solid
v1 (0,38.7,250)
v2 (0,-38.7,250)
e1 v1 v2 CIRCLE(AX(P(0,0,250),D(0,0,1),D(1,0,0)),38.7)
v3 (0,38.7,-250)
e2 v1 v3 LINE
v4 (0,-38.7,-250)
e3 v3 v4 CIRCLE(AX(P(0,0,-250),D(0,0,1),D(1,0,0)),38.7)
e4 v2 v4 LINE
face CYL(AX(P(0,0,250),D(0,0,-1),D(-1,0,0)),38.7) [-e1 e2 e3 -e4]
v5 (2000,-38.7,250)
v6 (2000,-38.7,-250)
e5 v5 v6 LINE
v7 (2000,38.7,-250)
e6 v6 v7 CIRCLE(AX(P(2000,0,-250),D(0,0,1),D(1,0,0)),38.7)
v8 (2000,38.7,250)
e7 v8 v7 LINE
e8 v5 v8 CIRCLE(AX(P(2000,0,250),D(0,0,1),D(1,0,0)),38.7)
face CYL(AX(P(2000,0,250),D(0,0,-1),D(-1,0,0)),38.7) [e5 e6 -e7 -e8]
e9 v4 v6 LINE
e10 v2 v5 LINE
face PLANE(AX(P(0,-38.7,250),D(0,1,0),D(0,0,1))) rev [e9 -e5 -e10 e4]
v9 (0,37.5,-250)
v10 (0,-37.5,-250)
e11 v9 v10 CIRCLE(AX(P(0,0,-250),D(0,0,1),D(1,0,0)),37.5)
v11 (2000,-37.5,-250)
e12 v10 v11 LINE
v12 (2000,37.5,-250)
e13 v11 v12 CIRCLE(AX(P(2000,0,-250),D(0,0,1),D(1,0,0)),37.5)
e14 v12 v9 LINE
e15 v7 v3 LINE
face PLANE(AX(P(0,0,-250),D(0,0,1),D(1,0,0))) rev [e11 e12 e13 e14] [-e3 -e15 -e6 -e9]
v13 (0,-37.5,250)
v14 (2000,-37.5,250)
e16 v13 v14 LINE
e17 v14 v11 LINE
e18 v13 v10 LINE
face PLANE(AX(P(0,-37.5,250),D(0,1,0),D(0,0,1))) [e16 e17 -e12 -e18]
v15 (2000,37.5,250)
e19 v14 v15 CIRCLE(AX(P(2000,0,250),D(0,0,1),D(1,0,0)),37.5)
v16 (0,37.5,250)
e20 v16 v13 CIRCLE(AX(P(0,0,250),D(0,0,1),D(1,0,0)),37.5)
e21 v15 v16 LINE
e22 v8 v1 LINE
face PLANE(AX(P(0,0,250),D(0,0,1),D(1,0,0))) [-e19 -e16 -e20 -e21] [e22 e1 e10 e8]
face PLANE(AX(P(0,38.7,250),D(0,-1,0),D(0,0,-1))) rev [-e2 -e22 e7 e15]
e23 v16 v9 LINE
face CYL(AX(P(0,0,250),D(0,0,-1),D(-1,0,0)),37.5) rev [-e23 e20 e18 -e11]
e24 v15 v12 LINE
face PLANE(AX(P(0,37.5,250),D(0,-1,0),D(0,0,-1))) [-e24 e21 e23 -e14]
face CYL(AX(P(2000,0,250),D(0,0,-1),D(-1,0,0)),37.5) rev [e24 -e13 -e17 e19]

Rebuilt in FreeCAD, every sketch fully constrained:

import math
import FreeCAD as App
import Part
import Sketcher

V = App.Vector
Q = App.Units.Quantity

doc = App.newDocument("Part")
body = doc.addObject("PartDesign::Body", "Body")

sketch1 = doc.addObject("Sketcher::SketchObject", "Sketch")
body.addObject(sketch1)
sketch1.AttachmentSupport = (doc.XY_Plane, [""])
sketch1.MapMode = "FlatFace"
sketch1.addGeometry([
    Part.LineSegment(V(0, -38.7, 0), V(2000, -38.7, 0)),
    Part.ArcOfCircle(Part.Circle(V(2000, 0, 0), V(0, 0, 1), 38.7), math.radians(-90), math.radians(90)),
    Part.LineSegment(V(2000, 38.7, 0), V(0, 38.7, 0)),
    Part.ArcOfCircle(Part.Circle(V(0, 0, 0), V(0, 0, 1), 38.7), math.radians(90), math.radians(270)),
    Part.ArcOfCircle(Part.Circle(V(0, 0, 0), V(0, 0, 1), 37.5), math.radians(90), math.radians(270)),
    Part.LineSegment(V(0, 37.5, 0), V(2000, 37.5, 0)),
    Part.ArcOfCircle(Part.Circle(V(2000, 0, 0), V(0, 0, 1), 37.5), math.radians(-90), math.radians(90)),
    Part.LineSegment(V(2000, -37.5, 0), V(0, -37.5, 0)),
], False)
sketch1.addConstraint([
    Sketcher.Constraint("Tangent", 0, 2, 1, 1),
    Sketcher.Constraint("Tangent", 1, 2, 2, 1),
    Sketcher.Constraint("Tangent", 2, 2, 3, 1),
    Sketcher.Constraint("Tangent", 3, 2, 0, 1),
    Sketcher.Constraint("Tangent", 4, 1, 5, 1),
    Sketcher.Constraint("Tangent", 5, 2, 6, 2),
    Sketcher.Constraint("Tangent", 6, 1, 7, 1),
    Sketcher.Constraint("Tangent", 7, 2, 4, 2),
    Sketcher.Constraint("Horizontal", 0),
    Sketcher.Constraint("Horizontal", 2),
    Sketcher.Constraint("Horizontal", 5),
    Sketcher.Constraint("Horizontal", 7),
    Sketcher.Constraint("Coincident", 3, 3, -1, 1),
    Sketcher.Constraint("Coincident", 4, 3, -1, 1),
    Sketcher.Constraint("Vertical", 6, 3, 0, 2),
    Sketcher.Constraint("Radius", 1, Q("38.7 mm")),
    Sketcher.Constraint("Radius", 4, Q("37.5 mm")),
    Sketcher.Constraint("DistanceX", 0, 1, 0, 2, Q("2000 mm")),
])
pad1 = doc.addObject("PartDesign::Pad", "Pad")
body.addObject(pad1)
pad1.Profile = sketch1
pad1.Length = 500
pad1.Midplane = True

doc.recompute()
